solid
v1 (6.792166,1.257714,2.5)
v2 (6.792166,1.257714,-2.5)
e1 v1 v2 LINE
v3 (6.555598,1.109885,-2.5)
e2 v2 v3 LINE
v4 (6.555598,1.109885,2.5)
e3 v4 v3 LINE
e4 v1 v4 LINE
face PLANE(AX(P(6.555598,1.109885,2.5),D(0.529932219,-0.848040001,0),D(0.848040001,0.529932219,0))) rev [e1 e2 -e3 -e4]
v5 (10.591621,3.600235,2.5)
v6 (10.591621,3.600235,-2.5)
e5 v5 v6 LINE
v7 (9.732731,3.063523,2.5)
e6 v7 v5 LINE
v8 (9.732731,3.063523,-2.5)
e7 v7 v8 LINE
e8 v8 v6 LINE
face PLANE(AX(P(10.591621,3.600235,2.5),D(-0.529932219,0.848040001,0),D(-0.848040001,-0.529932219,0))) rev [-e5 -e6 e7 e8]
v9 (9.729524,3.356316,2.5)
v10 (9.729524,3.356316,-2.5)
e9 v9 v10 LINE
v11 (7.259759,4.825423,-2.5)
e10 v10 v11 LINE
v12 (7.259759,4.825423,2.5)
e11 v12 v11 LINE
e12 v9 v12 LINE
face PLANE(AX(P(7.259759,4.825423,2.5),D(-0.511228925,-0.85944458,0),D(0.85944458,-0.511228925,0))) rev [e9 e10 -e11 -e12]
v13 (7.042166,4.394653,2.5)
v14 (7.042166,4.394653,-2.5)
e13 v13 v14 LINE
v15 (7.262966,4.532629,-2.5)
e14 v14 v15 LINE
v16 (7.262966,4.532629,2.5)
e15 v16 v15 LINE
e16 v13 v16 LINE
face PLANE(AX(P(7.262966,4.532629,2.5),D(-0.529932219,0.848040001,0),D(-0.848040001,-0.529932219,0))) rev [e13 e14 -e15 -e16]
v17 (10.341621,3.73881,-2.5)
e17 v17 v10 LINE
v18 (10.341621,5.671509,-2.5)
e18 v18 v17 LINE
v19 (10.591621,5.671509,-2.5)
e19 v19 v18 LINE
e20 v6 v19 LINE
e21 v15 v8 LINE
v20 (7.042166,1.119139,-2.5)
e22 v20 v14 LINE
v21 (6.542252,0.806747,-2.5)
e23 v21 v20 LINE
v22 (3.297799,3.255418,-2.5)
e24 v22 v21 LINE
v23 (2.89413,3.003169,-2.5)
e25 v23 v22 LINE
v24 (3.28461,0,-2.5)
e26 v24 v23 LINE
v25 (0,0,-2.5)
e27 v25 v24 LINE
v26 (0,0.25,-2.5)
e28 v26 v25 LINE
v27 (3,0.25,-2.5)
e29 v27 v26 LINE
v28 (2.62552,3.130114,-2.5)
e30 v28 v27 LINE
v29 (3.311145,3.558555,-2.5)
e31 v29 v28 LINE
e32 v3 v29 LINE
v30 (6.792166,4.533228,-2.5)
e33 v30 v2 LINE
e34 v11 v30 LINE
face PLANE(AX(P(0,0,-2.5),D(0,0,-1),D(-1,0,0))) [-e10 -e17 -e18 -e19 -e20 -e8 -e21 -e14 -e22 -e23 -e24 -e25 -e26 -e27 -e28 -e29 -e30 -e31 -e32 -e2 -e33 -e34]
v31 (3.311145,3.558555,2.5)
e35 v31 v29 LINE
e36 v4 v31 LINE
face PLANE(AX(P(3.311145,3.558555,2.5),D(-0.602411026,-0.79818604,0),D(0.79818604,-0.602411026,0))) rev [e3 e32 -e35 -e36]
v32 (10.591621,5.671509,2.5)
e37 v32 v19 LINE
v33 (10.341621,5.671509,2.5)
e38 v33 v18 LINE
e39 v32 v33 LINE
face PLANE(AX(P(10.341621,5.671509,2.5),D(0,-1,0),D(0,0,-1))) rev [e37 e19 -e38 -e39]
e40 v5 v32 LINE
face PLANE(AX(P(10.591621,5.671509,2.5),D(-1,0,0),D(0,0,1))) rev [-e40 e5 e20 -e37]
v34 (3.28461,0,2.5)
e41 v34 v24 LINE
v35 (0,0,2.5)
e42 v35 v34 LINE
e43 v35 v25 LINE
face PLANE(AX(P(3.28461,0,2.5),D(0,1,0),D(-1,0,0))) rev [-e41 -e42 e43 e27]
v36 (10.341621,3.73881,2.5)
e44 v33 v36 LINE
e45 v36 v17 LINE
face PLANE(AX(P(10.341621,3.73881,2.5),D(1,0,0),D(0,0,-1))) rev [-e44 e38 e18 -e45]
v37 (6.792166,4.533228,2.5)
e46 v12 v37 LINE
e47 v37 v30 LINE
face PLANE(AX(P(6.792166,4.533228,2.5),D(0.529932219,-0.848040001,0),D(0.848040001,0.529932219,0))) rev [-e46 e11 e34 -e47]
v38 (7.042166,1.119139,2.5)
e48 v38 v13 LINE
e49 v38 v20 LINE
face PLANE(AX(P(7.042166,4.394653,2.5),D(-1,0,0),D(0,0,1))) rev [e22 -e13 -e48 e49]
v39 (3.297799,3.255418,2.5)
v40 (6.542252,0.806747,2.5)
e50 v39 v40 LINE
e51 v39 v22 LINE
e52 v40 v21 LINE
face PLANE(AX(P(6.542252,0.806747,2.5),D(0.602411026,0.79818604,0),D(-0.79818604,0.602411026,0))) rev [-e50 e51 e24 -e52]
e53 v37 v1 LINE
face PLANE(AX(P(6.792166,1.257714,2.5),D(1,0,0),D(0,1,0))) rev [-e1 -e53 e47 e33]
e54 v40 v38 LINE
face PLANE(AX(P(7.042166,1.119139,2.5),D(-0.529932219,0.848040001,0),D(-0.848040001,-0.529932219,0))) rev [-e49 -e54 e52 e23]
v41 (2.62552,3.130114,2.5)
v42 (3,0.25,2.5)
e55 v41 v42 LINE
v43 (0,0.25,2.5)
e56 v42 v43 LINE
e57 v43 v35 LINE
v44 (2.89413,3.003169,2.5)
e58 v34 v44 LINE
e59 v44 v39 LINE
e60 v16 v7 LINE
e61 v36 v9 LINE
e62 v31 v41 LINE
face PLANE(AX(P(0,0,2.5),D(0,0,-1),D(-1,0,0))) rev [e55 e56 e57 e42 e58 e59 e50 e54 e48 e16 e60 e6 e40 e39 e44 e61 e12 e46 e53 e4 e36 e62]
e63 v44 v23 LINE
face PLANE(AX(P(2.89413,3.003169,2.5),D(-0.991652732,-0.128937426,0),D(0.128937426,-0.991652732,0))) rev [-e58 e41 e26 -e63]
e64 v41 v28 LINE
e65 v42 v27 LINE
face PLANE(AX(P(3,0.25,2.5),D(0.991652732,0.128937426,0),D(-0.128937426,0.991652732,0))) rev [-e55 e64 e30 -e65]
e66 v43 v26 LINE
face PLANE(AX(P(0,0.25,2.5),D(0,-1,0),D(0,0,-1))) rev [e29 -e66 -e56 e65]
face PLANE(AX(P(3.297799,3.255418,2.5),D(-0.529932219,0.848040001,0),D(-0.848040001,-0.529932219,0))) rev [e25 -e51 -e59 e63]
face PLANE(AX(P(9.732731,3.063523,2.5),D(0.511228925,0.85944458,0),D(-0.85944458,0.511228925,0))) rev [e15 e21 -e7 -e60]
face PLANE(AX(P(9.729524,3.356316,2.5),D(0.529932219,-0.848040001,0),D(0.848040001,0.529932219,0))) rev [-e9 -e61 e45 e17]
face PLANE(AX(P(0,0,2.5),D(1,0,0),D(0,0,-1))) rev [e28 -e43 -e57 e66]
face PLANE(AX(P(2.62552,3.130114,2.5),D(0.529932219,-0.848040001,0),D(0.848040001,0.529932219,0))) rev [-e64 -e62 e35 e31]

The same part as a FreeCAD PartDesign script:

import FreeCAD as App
import Part
import Sketcher

V = App.Vector

doc = App.newDocument("Part")
params = doc.addObject("Spreadsheet::Sheet", "Params")
for row, (alias, value) in enumerate([
    ("sketch1_width", "3 mm"),
    ("sketch1_width2", "0.25 mm"),
    ("pad1_length", "5 mm"),
], start=1):
    params.set(f"A{row}", alias)
    params.set(f"B{row}", "=" + value)
    params.setAlias(f"B{row}", alias)

body = doc.addObject("PartDesign::Body", "Body")

# Sketch on XY plane
sketch1 = body.newObject("Sketcher::SketchObject", "Sketch")
sketch1.AttachmentSupport = (doc.getObject("XY_Plane"), [""])
sketch1.MapMode = "FlatFace"
sketch1.addGeometry(Part.LineSegment(V(0, 0.25, 0), V(0, 0, 0)), False)
sketch1.addGeometry(Part.LineSegment(V(0, 0, 0), V(3.28, 0, 0)), False)
sketch1.addGeometry(Part.LineSegment(V(3.28, 0, 0), V(2.89, 3, 0)), False)
sketch1.addGeometry(Part.LineSegment(V(2.89, 3, 0), V(3.3, 3.26, 0)), False)
sketch1.addGeometry(Part.LineSegment(V(3.3, 3.26, 0), V(6.54, 0.81, 0)), False)
sketch1.addGeometry(Part.LineSegment(V(6.54, 0.81, 0), V(7.04, 1.12, 0)), False)
sketch1.addGeometry(Part.LineSegment(V(7.04, 1.12, 0), V(7.04, 4.39, 0)), False)
sketch1.addGeometry(Part.LineSegment(V(7.04, 4.39, 0), V(7.26, 4.53, 0)), False)
sketch1.addGeometry(Part.LineSegment(V(7.26, 4.53, 0), V(9.73, 3.06, 0)), False)
sketch1.addGeometry(Part.LineSegment(V(9.73, 3.06, 0), V(10.59, 3.6, 0)), False)
sketch1.addGeometry(Part.LineSegment(V(10.59, 3.6, 0), V(10.59, 5.67, 0)), False)
sketch1.addGeometry(Part.LineSegment(V(10.59, 5.67, 0), V(10.34, 5.67, 0)), False)
sketch1.addGeometry(Part.LineSegment(V(10.34, 5.67, 0), V(10.34, 3.74, 0)), False)
sketch1.addGeometry(Part.LineSegment(V(10.34, 3.74, 0), V(9.73, 3.36, 0)), False)
sketch1.addGeometry(Part.LineSegment(V(9.73, 3.36, 0), V(7.26, 4.83, 0)), False)
sketch1.addGeometry(Part.LineSegment(V(7.26, 4.83, 0), V(6.79, 4.53, 0)), False)
sketch1.addGeometry(Part.LineSegment(V(6.79, 4.53, 0), V(6.79, 1.26, 0)), False)
sketch1.addGeometry(Part.LineSegment(V(6.79, 1.26, 0), V(6.56, 1.11, 0)), False)
sketch1.addGeometry(Part.LineSegment(V(6.56, 1.11, 0), V(3.31, 3.56, 0)), False)
sketch1.addGeometry(Part.LineSegment(V(3.31, 3.56, 0), V(2.63, 3.13, 0)), False)
sketch1.addGeometry(Part.LineSegment(V(2.63, 3.13, 0), V(3, 0.25, 0)), False)
sketch1.addGeometry(Part.LineSegment(V(3, 0.25, 0), V(0, 0.25, 0)), False)
sketch1.addConstraint(Sketcher.Constraint("Coincident", 0, 2, 1, 1))
sketch1.addConstraint(Sketcher.Constraint("Coincident", 1, 2, 2, 1))
sketch1.addConstraint(Sketcher.Constraint("Coincident", 2, 2, 3, 1))
sketch1.addConstraint(Sketcher.Constraint("Coincident", 3, 2, 4, 1))
sketch1.addConstraint(Sketcher.Constraint("Coincident", 4, 2, 5, 1))
sketch1.addConstraint(Sketcher.Constraint("Coincident", 5, 2, 6, 1))
sketch1.addConstraint(Sketcher.Constraint("Coincident", 6, 2, 7, 1))
sketch1.addConstraint(Sketcher.Constraint("Coincident", 7, 2, 8, 1))
sketch1.addConstraint(Sketcher.Constraint("Coincident", 8, 2, 9, 1))
sketch1.addConstraint(Sketcher.Constraint("Coincident", 9, 2, 10, 1))
sketch1.addConstraint(Sketcher.Constraint("Coincident", 10, 2, 11, 1))
sketch1.addConstraint(Sketcher.Constraint("Coincident", 11, 2, 12, 1))
sketch1.addConstraint(Sketcher.Constraint("Coincident", 12, 2, 13, 1))
sketch1.addConstraint(Sketcher.Constraint("Coincident", 13, 2, 14, 1))
sketch1.addConstraint(Sketcher.Constraint("Coincident", 14, 2, 15, 1))
sketch1.addConstraint(Sketcher.Constraint("Coincident", 15, 2, 16, 1))
sketch1.addConstraint(Sketcher.Constraint("Coincident", 16, 2, 17, 1))
sketch1.addConstraint(Sketcher.Constraint("Coincident", 17, 2, 18, 1))
sketch1.addConstraint(Sketcher.Constraint("Coincident", 18, 2, 19, 1))
sketch1.addConstraint(Sketcher.Constraint("Coincident", 19, 2, 20, 1))
sketch1.addConstraint(Sketcher.Constraint("Coincident", 20, 2, 21, 1))
sketch1.addConstraint(Sketcher.Constraint("Coincident", 21, 2, 0, 1))
sketch1.addConstraint(Sketcher.Constraint("Vertical", 0))
sketch1.addConstraint(Sketcher.Constraint("Horizontal", 1))
sketch1.addConstraint(Sketcher.Constraint("Vertical", 6))
sketch1.addConstraint(Sketcher.Constraint("Vertical", 10))
sketch1.addConstraint(Sketcher.Constraint("Horizontal", 11))
sketch1.addConstraint(Sketcher.Constraint("Vertical", 12))
sketch1.addConstraint(Sketcher.Constraint("Vertical", 16))
sketch1.addConstraint(Sketcher.Constraint("Horizontal", 21))
sketch1.addConstraint(Sketcher.Constraint("Coincident", 0, 2, -1, 1))
sketch1.addConstraint(Sketcher.Constraint("Parallel", 3, 5))
sketch1.addConstraint(Sketcher.Constraint("Parallel", 5, 7))
sketch1.addConstraint(Sketcher.Constraint("Parallel", 7, 9))
sketch1.addConstraint(Sketcher.Constraint("Parallel", 9, 13))
sketch1.addConstraint(Sketcher.Constraint("Parallel", 8, 14))
sketch1.addConstraint(Sketcher.Constraint("Parallel", 13, 15))
sketch1.addConstraint(Sketcher.Constraint("Parallel", 15, 17))
sketch1.addConstraint(Sketcher.Constraint("Parallel", 4, 18))
sketch1.addConstraint(Sketcher.Constraint("Parallel", 17, 19))
sketch1.addConstraint(Sketcher.Constraint("Parallel", 2, 20))
sketch1.addConstraint(Sketcher.Constraint("Equal", 11, 0))
sketch1.addConstraint(Sketcher.Constraint("Equal", 6, 16))
sketch1.addConstraint(Sketcher.Constraint("Equal", 8, 14))
sketch1.addConstraint(Sketcher.Constraint("Equal", 4, 18))
sketch1.addConstraint(Sketcher.Constraint("DistanceX", 21, 2, 21, 1, 3.0))
sketch1.addConstraint(Sketcher.Constraint("DistanceX", 11, 2, 11, 1, 0.25))
sketch1.addConstraint(Sketcher.Constraint("DistanceX", 15, 2, 6, 2, 0.25))
sketch1.addConstraint(Sketcher.Constraint("DistanceY", 12, 2, 12, 1, 1.932699))
sketch1.addConstraint(Sketcher.Constraint("DistanceX", 1, 1, 1, 2, 3.28461))
sketch1.addConstraint(Sketcher.Constraint("DistanceX", -1, 1, 3, 2, 3.297799))
sketch1.addConstraint(Sketcher.Constraint("DistanceX", -1, 1, 17, 2, 6.555598))
sketch1.addConstraint(Sketcher.Constraint("DistanceX", 6, 2, 7, 2, 0.2208))
sketch1.addConstraint(Sketcher.Constraint("DistanceY", 8, 2, 14, 2, 1.761899))
sketch1.addConstraint(Sketcher.Constraint("DistanceY", 7, 2, 15, 2, 0.000599))
sketch1.addConstraint(Sketcher.Constraint("DistanceY", 18, 2, 6, 2, 0.836098))
sketch1.addConstraint(Sketcher.Constraint("Distance", 2, 3.028448))
sketch1.addConstraint(Sketcher.Constraint("Distance", 15, 0.55138))
sketch1.addConstraint(Sketcher.Constraint("Distance", 17, 0.278959))
sketch1.addConstraint(Sketcher.Constraint("DistanceY", 6, 1, 6, 2, 3.275514))
sketch1.addConstraint(Sketcher.Constraint("DistanceY", 10, 1, 10, 2, 2.071274))
sketch1.addConstraint(Sketcher.Constraint("DistanceX", -1, 1, 2, 2, 2.89413))
sketch1.addConstraint(Sketcher.Constraint("DistanceY", -1, 1, 5, 2, 1.119139))
sketch1.addConstraint(Sketcher.Constraint("DistanceX", -1, 1, 8, 2, 9.732731))
sketch1.addConstraint(Sketcher.Constraint("DistanceX", -1, 1, 9, 2, 10.591621))
sketch1.setExpression("Constraints[45]", "Params.sketch1_width")
sketch1.setExpression("Constraints[46]", "Params.sketch1_width2")
pad1 = body.newObject("PartDesign::Pad", "Pad")
pad1.Profile = sketch1
pad1.setExpression("Length", "Params.pad1_length")
pad1.Midplane = True

doc.recompute()
